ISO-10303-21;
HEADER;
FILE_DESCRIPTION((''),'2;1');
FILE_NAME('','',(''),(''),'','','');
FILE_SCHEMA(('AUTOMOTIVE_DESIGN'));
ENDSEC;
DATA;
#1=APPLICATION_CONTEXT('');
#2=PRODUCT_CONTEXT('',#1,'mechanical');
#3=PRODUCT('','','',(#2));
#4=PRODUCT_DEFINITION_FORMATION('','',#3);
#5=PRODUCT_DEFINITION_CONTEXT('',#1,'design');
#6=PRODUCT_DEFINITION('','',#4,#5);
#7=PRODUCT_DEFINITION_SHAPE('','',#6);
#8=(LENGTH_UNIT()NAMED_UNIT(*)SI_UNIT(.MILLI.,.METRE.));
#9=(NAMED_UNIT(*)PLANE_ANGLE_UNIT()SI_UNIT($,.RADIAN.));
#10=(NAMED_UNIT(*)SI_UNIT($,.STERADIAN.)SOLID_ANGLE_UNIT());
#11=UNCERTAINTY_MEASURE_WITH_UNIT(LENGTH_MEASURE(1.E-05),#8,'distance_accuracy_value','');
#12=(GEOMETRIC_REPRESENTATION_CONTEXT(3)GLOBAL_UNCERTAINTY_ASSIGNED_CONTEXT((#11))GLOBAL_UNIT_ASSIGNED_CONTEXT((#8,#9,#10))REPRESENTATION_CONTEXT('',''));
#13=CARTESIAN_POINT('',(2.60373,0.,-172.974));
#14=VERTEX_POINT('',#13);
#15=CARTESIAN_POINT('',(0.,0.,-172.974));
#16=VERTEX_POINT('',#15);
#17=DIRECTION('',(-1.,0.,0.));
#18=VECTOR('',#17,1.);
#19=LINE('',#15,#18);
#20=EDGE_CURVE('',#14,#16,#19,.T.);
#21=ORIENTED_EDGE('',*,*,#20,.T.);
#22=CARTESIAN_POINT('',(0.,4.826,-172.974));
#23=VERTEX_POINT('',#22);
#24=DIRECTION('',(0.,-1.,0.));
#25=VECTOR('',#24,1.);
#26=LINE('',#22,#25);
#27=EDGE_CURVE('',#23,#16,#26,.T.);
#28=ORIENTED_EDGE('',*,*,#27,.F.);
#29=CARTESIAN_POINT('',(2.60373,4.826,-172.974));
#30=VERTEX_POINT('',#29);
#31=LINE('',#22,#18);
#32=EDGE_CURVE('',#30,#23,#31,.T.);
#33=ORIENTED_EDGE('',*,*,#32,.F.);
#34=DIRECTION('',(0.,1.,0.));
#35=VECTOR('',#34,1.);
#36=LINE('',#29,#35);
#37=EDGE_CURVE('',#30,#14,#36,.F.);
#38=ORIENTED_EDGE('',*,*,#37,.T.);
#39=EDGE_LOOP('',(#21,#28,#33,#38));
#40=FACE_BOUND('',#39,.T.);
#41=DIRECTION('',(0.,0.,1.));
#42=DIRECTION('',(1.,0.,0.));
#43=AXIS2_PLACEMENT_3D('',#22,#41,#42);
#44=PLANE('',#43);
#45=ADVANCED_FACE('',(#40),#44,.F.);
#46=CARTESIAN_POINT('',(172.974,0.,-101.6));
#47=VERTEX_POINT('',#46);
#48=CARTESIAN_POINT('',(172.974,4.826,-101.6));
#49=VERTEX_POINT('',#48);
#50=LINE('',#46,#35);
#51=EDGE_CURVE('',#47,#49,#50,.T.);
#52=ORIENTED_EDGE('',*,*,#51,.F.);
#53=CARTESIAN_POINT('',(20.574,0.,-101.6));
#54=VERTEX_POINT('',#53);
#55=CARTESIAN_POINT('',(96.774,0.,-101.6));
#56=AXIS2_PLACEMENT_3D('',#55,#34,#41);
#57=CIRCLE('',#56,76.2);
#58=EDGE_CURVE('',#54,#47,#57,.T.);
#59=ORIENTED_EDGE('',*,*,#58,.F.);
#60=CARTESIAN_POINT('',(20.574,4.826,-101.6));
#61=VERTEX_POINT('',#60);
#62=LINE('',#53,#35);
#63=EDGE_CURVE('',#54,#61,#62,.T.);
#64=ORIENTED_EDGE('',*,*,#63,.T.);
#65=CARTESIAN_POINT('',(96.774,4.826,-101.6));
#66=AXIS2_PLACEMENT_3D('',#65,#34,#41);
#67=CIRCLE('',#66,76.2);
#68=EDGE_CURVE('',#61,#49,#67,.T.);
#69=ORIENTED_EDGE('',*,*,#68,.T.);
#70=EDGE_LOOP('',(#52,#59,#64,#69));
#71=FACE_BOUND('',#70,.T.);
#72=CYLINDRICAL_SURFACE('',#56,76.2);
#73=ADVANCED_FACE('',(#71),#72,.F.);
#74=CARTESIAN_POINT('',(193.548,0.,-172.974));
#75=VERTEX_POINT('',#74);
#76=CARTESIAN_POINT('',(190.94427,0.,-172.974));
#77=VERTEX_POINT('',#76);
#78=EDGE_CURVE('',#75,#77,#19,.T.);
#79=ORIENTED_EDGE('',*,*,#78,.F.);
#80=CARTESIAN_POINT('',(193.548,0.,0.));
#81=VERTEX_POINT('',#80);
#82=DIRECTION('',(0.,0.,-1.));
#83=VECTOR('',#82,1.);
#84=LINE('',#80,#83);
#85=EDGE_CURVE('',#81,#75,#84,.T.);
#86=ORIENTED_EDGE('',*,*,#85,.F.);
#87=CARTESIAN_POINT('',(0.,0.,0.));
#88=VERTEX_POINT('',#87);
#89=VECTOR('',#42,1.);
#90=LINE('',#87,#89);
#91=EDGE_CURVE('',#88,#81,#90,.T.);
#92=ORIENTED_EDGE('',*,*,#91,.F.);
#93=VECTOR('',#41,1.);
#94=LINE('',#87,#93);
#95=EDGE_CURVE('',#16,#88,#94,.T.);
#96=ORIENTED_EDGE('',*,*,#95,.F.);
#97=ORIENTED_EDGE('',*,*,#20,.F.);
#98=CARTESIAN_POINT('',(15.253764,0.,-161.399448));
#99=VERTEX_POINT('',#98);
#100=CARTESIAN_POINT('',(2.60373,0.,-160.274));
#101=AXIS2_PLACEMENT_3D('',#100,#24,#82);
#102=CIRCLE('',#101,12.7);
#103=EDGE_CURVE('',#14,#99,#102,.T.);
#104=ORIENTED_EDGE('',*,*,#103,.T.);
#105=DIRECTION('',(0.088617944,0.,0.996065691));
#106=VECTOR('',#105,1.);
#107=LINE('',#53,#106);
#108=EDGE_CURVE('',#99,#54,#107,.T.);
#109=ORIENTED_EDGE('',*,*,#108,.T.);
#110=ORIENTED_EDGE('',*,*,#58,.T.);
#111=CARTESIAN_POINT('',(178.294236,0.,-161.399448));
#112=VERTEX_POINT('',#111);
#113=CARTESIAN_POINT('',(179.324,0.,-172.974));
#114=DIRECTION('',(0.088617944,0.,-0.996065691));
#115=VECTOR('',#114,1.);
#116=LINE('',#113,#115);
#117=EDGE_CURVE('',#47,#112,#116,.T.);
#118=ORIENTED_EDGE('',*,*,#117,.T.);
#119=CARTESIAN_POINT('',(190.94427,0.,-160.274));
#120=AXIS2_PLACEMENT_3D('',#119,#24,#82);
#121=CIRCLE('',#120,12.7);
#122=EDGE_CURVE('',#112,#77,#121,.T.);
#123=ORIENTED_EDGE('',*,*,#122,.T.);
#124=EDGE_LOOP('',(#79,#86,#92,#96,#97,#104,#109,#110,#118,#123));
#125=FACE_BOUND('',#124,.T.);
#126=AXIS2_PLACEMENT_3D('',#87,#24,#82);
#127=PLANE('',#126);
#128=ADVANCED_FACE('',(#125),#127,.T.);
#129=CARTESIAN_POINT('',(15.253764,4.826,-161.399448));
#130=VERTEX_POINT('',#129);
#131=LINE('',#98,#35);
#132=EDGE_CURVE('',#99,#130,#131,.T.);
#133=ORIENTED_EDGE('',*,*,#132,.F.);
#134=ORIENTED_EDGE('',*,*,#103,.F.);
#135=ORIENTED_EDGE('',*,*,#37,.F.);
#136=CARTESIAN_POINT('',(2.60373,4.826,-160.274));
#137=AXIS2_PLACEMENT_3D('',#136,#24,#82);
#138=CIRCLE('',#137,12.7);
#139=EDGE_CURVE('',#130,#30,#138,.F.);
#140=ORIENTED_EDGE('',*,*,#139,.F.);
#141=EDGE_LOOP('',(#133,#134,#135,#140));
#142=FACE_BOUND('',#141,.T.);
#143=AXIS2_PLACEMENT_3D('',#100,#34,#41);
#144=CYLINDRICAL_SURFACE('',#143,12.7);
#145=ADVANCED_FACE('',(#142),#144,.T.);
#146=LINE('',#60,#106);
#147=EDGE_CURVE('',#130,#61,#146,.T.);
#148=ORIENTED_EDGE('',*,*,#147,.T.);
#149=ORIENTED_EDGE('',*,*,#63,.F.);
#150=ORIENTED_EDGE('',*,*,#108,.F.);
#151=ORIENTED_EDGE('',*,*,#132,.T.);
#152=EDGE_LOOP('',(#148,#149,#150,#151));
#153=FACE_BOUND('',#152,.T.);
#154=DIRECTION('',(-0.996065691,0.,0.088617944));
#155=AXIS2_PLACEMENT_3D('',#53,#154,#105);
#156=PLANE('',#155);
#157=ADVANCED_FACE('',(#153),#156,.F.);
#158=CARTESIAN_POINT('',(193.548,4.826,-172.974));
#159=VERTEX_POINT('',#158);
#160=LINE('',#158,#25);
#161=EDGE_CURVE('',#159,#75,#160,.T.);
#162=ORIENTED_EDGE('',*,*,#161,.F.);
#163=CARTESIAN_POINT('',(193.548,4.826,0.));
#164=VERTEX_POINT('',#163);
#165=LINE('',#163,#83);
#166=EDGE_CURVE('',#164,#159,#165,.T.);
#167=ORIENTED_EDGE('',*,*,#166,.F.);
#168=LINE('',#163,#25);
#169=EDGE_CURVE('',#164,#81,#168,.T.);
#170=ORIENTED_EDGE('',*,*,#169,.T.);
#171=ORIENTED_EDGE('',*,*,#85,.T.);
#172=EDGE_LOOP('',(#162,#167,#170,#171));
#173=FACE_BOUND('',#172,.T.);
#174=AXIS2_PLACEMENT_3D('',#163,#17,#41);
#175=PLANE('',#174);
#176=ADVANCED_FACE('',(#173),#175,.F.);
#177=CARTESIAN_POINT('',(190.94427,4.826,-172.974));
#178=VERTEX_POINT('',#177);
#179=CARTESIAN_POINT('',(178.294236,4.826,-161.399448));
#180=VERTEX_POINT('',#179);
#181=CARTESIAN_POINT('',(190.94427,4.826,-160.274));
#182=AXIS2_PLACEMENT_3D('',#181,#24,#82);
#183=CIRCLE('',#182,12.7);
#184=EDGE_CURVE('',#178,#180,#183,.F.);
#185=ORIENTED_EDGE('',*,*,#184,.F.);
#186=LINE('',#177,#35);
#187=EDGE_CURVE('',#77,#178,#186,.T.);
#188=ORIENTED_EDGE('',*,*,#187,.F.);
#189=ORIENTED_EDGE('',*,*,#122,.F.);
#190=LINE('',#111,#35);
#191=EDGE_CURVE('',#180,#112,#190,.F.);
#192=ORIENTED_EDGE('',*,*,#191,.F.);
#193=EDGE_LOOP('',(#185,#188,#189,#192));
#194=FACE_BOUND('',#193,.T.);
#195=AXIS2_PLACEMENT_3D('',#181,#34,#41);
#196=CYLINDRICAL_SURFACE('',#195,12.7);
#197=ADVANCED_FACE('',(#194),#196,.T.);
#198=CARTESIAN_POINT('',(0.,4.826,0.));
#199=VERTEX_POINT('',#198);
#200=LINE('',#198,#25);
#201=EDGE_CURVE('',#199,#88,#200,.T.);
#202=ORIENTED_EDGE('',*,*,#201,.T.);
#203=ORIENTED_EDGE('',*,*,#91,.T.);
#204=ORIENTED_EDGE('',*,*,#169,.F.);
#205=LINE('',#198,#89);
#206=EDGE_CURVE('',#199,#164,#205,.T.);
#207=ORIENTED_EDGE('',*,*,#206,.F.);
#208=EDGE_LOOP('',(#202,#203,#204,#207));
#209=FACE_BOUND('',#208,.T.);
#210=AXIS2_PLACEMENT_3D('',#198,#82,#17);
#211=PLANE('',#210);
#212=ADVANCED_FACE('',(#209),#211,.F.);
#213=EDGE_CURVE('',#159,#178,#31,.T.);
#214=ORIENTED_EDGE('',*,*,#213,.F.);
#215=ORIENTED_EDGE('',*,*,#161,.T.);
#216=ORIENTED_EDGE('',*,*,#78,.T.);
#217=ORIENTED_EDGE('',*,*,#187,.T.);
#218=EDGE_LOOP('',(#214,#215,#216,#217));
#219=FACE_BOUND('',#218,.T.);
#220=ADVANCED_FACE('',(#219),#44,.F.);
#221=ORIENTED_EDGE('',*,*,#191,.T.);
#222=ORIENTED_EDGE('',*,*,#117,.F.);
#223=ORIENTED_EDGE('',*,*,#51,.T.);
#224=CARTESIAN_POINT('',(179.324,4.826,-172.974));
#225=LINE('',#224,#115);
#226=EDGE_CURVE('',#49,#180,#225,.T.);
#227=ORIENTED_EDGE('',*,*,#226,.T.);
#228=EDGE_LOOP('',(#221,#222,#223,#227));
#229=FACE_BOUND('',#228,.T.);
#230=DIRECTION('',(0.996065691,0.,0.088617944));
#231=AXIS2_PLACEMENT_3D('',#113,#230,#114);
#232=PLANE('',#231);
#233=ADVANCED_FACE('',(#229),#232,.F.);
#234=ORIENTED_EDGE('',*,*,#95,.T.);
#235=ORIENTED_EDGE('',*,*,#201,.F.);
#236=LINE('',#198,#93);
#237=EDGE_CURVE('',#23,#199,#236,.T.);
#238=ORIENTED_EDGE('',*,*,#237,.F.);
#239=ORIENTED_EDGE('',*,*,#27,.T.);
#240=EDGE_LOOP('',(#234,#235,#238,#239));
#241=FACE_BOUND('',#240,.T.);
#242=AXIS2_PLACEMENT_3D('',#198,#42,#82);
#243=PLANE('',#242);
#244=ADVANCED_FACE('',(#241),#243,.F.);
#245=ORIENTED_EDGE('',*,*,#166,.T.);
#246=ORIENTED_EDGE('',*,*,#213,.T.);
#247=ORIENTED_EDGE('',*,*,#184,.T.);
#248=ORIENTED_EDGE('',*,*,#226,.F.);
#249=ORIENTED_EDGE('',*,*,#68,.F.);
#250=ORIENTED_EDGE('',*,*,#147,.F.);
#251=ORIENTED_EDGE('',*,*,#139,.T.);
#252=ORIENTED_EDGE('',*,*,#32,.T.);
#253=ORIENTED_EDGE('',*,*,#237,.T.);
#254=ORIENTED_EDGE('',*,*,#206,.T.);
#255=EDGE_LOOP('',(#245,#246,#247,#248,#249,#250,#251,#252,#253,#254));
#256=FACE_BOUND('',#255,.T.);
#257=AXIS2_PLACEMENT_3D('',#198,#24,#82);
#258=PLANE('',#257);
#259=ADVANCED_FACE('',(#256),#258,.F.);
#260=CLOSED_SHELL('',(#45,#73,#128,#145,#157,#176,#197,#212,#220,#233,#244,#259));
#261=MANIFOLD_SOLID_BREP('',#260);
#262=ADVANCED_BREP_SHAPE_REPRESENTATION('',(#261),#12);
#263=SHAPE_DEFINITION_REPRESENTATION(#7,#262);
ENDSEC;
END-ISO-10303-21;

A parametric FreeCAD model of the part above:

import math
import FreeCAD as App
import Part
import Sketcher

V = App.Vector
Q = App.Units.Quantity


def edges_at(feature, points):
    """Names of the edges that pass closest to the given points."""
    edges = feature.Shape.Edges
    near = lambda p: min(range(len(edges)), key=lambda i: edges[i].distToShape(Part.Vertex(*p))[0])
    return sorted({f"Edge{near(p) + 1}" for p in points})

doc = App.newDocument("Part")
body = doc.addObject("PartDesign::Body", "Body")

# Sketch on XZ plane
sketch1 = doc.addObject("Sketcher::SketchObject", "Sketch")
body.addObject(sketch1)
sketch1.AttachmentSupport = (doc.XZ_Plane, [""])
sketch1.MapMode = "FlatFace"
sketch1.addGeometry([
    Part.LineSegment(V(0, -173, 0), V(0, 0, 0)),
    Part.LineSegment(V(0, 0, 0), V(194, 0, 0)),
    Part.LineSegment(V(194, 0, 0), V(194, -173, 0)),
    Part.LineSegment(V(194, -173, 0), V(0, -173, 0)),
], False)
sketch1.addConstraint([
    Sketcher.Constraint("Coincident", 0, 2, 1, 1),
    Sketcher.Constraint("Coincident", 1, 2, 2, 1),
    Sketcher.Constraint("Coincident", 2, 2, 3, 1),
    Sketcher.Constraint("Coincident", 3, 2, 0, 1),
    Sketcher.Constraint("Vertical", 0),
    Sketcher.Constraint("Horizontal", 1),
    Sketcher.Constraint("Vertical", 2),
    Sketcher.Constraint("Horizontal", 3),
    Sketcher.Constraint("Coincident", 0, 2, -1, 1),
    Sketcher.Constraint("DistanceX", 1, 1, 1, 2, Q("7.62 in")),
    Sketcher.Constraint("DistanceY", 0, 1, 0, 2, Q("6.81 in")),
])
pad1 = doc.addObject("PartDesign::Pad", "Pad")
body.addObject(pad1)
pad1.Profile = sketch1
pad1.Length = Q("0.19 in")
pad1.Reversed = True

# Sketch on XZ plane
sketch2 = doc.addObject("Sketcher::SketchObject", "Sketch001")
body.addObject(sketch2)
sketch2.AttachmentSupport = (doc.XZ_Plane, [""])
sketch2.MapMode = "FlatFace"
sketch2.AttachmentOffset = App.Placement(V(0, 0, -0.19 * 25.4), App.Rotation())
sketch2.addGeometry([
    Part.LineSegment(V(14, -173, 0), V(21, -102, 0)),
    Part.ArcOfCircle(Part.Circle(V(97, -102, 0), V(0, 0, 1), 76), math.radians(0), math.radians(180)),
    Part.LineSegment(V(173, -102, 0), V(179, -173, 0)),
    Part.LineSegment(V(179, -173, 0), V(14, -173, 0)),
], False)
sketch2.addConstraint([
    Sketcher.Constraint("Coincident", 0, 2, 1, 2),
    Sketcher.Constraint("Coincident", 1, 1, 2, 1),
    Sketcher.Constraint("Coincident", 2, 2, 3, 1),
    Sketcher.Constraint("Coincident", 3, 2, 0, 1),
    Sketcher.Constraint("Horizontal", 3),
    Sketcher.Constraint("Horizontal", 1, 3, 0, 2),
    Sketcher.Constraint("Horizontal", 0, 2, 1, 1),
    Sketcher.Constraint("Equal", 0, 2),
    Sketcher.Constraint("Radius", 1, Q("3 in")),
    Sketcher.Constraint("DistanceX", 3, 2, 3, 1, Q("6.5 in")),
    Sketcher.Constraint("DistanceY", 1, 3, -1, 1, Q("4 in")),
    Sketcher.Constraint("DistanceX", -1, 1, 1, 3, Q("3.81 in")),
    Sketcher.Constraint("DistanceY", 2, 2, -1, 1, Q("6.81 in")),
])
pocket1 = doc.addObject("PartDesign::Pocket", "Pocket")
body.addObject(pocket1)
pocket1.Profile = sketch2
pocket1.Type = "ThroughAll"
pocket1.Reversed = True
doc.recompute()

fillet = doc.addObject("PartDesign::Fillet", "Fillet")
body.addObject(fillet)
fillet.Base = (pocket1, edges_at(pocket1, [(14.224, 2.413, -172.974), (179.324, 2.413, -172.974)]))
fillet.Radius = Q("0.5 in")

doc.recompute()
